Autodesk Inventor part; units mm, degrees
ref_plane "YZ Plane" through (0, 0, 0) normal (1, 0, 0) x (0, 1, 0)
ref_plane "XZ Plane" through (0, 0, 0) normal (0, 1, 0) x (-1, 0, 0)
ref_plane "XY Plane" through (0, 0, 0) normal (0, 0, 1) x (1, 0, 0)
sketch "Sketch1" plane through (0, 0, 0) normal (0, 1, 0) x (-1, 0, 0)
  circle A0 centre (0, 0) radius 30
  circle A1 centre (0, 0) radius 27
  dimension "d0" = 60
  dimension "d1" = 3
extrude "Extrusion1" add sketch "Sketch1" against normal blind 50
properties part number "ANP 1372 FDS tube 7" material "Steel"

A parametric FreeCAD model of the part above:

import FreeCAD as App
import Part
import Sketcher

doc = App.newDocument("Part")
params = doc.addObject("Spreadsheet::Sheet", "Params")
for row, (alias, value) in enumerate([
    ("sketch1_diameter", "60 mm"),
    ("sketch1_diameter2", "54 mm"),
    ("pad1_length", "50 mm"),
], start=1):
    params.set(f"A{row}", alias)
    params.set(f"B{row}", "=" + value)
    params.setAlias(f"B{row}", alias)

body = doc.addObject("PartDesign::Body", "Body")

sketch1 = doc.addObject("Sketcher::SketchObject", "Sketch")
body.addObject(sketch1)
sketch1.AttachmentSupport = (doc.XZ_Plane, [""])
sketch1.MapMode = "FlatFace"
sketch1.addGeometry([
    Part.Circle(App.Vector(0, 0, 0), App.Vector(0, 0, 1), 30),
    Part.Circle(App.Vector(0, 0, 0), App.Vector(0, 0, 1), 27),
], False)
sketch1.addConstraint([
    Sketcher.Constraint("Coincident", 0, 3, -1, 1),
    Sketcher.Constraint("Coincident", 1, 3, -1, 1),
    Sketcher.Constraint("Diameter", 0, 60.0),
    Sketcher.Constraint("Diameter", 1, 54.0),
])
sketch1.setExpression("Constraints[2]", "Params.sketch1_diameter")
sketch1.setExpression("Constraints[3]", "Params.sketch1_diameter2")
pad1 = doc.addObject("PartDesign::Pad", "Pad")
body.addObject(pad1)
pad1.Profile = sketch1
pad1.setExpression("Length", "Params.pad1_length")

doc.recompute()
